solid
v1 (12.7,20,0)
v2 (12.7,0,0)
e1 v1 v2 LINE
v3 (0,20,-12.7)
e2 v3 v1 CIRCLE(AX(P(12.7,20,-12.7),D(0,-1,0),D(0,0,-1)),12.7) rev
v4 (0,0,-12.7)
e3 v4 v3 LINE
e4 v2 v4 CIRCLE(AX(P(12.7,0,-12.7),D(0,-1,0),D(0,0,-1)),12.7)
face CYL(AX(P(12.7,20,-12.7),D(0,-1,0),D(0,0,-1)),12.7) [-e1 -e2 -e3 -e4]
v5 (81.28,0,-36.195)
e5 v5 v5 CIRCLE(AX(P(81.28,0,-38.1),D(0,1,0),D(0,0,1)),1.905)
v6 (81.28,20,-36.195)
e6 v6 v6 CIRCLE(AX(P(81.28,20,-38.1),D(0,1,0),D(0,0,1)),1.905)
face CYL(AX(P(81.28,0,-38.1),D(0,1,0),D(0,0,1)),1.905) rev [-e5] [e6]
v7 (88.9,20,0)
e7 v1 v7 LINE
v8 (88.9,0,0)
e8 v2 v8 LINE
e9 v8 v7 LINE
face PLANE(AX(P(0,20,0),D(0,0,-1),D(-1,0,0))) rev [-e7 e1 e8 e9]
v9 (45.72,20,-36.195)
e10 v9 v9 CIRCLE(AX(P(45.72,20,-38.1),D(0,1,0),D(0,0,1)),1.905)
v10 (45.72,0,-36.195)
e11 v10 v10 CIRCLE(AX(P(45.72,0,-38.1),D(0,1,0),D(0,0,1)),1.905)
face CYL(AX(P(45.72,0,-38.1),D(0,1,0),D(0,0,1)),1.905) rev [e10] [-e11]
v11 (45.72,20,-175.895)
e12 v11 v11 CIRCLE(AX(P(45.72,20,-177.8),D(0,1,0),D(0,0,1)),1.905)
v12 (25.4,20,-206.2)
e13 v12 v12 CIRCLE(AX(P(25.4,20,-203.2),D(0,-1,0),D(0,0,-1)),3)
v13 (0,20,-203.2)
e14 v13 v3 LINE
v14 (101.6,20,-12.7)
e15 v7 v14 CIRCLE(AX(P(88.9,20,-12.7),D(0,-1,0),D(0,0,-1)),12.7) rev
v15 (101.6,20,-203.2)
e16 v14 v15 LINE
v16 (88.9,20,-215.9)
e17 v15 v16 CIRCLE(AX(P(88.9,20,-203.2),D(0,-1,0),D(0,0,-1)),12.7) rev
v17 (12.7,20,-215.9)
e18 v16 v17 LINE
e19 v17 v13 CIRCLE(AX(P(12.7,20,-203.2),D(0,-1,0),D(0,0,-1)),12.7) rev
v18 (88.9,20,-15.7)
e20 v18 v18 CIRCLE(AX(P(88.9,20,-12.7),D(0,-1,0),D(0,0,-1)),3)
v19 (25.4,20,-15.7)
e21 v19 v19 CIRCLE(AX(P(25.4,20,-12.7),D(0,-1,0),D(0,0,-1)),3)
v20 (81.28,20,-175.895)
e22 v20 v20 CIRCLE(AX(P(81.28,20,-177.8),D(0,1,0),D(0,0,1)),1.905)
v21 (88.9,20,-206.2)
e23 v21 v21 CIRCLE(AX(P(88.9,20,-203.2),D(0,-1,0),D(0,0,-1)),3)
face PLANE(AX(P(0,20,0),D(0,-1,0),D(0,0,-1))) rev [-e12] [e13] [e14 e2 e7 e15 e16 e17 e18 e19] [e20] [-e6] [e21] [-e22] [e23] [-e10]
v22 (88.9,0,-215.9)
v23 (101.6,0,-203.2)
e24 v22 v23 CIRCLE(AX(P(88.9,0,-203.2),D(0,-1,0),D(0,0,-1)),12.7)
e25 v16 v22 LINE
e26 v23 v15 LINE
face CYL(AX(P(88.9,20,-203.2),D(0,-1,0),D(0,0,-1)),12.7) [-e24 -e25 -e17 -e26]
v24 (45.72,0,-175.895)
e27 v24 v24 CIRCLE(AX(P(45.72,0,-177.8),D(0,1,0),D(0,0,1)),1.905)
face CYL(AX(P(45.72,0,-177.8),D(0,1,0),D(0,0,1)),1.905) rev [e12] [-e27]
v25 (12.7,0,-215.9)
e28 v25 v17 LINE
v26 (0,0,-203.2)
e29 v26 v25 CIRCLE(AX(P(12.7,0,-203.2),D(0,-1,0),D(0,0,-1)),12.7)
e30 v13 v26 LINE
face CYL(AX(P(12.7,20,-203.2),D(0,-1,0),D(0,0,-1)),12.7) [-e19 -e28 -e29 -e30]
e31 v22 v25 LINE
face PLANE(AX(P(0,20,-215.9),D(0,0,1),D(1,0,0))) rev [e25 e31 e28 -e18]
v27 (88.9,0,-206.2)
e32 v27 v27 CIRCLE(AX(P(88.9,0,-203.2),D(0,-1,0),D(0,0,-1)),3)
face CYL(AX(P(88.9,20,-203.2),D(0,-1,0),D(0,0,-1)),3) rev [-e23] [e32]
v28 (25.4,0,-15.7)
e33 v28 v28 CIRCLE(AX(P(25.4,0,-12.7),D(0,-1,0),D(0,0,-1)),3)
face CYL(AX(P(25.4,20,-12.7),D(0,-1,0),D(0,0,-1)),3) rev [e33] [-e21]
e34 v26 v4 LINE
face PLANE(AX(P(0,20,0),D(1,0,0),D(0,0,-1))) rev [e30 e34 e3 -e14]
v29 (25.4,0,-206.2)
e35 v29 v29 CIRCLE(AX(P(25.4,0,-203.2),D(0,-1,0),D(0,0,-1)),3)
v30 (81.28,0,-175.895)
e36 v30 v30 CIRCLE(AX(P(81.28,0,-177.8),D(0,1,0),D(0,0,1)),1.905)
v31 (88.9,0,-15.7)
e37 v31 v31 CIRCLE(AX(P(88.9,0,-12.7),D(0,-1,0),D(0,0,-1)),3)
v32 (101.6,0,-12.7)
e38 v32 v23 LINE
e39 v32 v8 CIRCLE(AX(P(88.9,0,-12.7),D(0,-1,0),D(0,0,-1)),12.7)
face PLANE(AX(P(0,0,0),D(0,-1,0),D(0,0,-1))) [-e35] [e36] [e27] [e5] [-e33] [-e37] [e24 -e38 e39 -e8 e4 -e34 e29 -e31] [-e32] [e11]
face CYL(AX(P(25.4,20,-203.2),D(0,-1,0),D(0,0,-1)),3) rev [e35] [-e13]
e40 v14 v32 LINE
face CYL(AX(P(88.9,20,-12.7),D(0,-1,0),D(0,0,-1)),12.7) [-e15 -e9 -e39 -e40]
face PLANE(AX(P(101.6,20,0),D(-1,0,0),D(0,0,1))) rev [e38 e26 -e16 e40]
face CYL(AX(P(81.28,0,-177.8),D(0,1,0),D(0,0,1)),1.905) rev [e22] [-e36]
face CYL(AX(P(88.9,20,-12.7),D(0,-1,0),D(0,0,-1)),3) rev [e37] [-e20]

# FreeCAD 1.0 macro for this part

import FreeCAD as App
import Part
import Sketcher
Q = App.Units.Quantity


def edges_at(feature, points):
    """Names of the edges that pass closest to the given points."""
    edges = feature.Shape.Edges
    near = lambda p: min(range(len(edges)), key=lambda i: edges[i].distToShape(Part.Vertex(*p))[0])
    return sorted({f"Edge{near(p) + 1}" for p in points})


def add_polygon(sketch, points):
    """Adds a closed chain of lines whose ends are joined by coincident constraints."""
    first, n = sketch.GeometryCount, len(points)
    for a, b in zip(points, points[1:] + points[:1]):
        sketch.addGeometry(Part.LineSegment(App.Vector(*a, 0), App.Vector(*b, 0)), False)
    for i in range(n):
        sketch.addConstraint(Sketcher.Constraint("Coincident", first + i, 2, first + (i + 1) % n, 1))

doc = App.newDocument("Part")
params = doc.addObject("Spreadsheet::Sheet", "Params")
for row, (alias, value) in enumerate([
    ("sketch1_width", "4 in"),
    ("sketch1_height", "8.5 in"),
    ("pad1_length", "20 mm"),
    ("fillet_radius", "0.5 in"),
    ("sketch3_diameter", "0.15 in"),
], start=1):
    params.set(f"A{row}", alias)
    params.set(f"B{row}", "=" + value)
    params.setAlias(f"B{row}", alias)

body = doc.addObject("PartDesign::Body", "Body")

# Sketch on XZ plane
sketch1 = body.newObject("Sketcher::SketchObject", "Sketch")
sketch1.AttachmentSupport = (doc.getObject("XZ_Plane"), [""])
sketch1.MapMode = "FlatFace"
add_polygon(sketch1, [(0, -216), (0, 0), (102, 0), (102, -216)])  # lines 0-3
sketch1.addConstraint(Sketcher.Constraint("Vertical", 0))
sketch1.addConstraint(Sketcher.Constraint("Horizontal", 1))
sketch1.addConstraint(Sketcher.Constraint("Vertical", 2))
sketch1.addConstraint(Sketcher.Constraint("Horizontal", 3))
sketch1.addConstraint(Sketcher.Constraint("Coincident", 0, 2, -1, 1))
sketch1.addConstraint(Sketcher.Constraint("DistanceX", 1, 1, 1, 2, Q("4 in")))
sketch1.addConstraint(Sketcher.Constraint("DistanceY", 0, 1, 0, 2, Q("8.5 in")))
sketch1.setExpression("Constraints[9]", "Params.sketch1_width")
sketch1.setExpression("Constraints[10]", "Params.sketch1_height")
pad1 = body.newObject("PartDesign::Pad", "Pad")
pad1.Profile = sketch1
pad1.setExpression("Length", "Params.pad1_length")
pad1.Reversed = True
doc.recompute()

fillet = body.newObject("PartDesign::Fillet", "Fillet")
fillet.Base = (pad1, edges_at(pad1, [
    (0, 10, -215.9),
    (101.6, 10, -215.9),
    (101.6, 10, 0),
    (0, 10, 0),
]))
fillet.setExpression("Radius", "Params.fillet_radius")

# Sketch on XZ plane
sketch2 = body.newObject("Sketcher::SketchObject", "Sketch001")
sketch2.AttachmentSupport = (doc.getObject("XZ_Plane"), [""])
sketch2.MapMode = "FlatFace"
sketch2.addGeometry(Part.Circle(App.Vector(88.9, -203.2, 0), App.Vector(0, 0, 1), 3), False)
sketch2.addGeometry(Part.Circle(App.Vector(25.4, -203.2, 0), App.Vector(0, 0, 1), 3), False)
sketch2.addGeometry(Part.Circle(App.Vector(88.9, -12.7, 0), App.Vector(0, 0, 1), 3), False)
sketch2.addGeometry(Part.Circle(App.Vector(25.4, -12.7, 0), App.Vector(0, 0, 1), 3), False)
sketch2.addConstraint(Sketcher.Constraint("Equal", 0, 1))
sketch2.addConstraint(Sketcher.Constraint("Equal", 1, 2))
sketch2.addConstraint(Sketcher.Constraint("Equal", 2, 3))
sketch2.addConstraint(Sketcher.Constraint("Horizontal", 0, 3, 1, 3))
sketch2.addConstraint(Sketcher.Constraint("Horizontal", 2, 3, 3, 3))
sketch2.addConstraint(Sketcher.Constraint("Vertical", 0, 3, 2, 3))
sketch2.addConstraint(Sketcher.Constraint("Vertical", 1, 3, 3, 3))
sketch2.addConstraint(Sketcher.Constraint("DistanceY", 0, 3, -1, 1, Q("8 in")))
sketch2.addConstraint(Sketcher.Constraint("DistanceX", -1, 1, 1, 3, Q("1 in")))
sketch2.addConstraint(Sketcher.Constraint("DistanceX", -1, 1, 0, 3, Q("3.5 in")))
sketch2.addConstraint(Sketcher.Constraint("DistanceY", 2, 3, -1, 1, Q("0.5 in")))
sketch2.addConstraint(Sketcher.Constraint("Diameter", 0, Q("6 mm")))
pocket1 = body.newObject("PartDesign::Pocket", "Pocket")
pocket1.Profile = sketch2
pocket1.Type = "ThroughAll"

# Sketch on XZ plane
sketch3 = body.newObject("Sketcher::SketchObject", "Sketch002")
sketch3.AttachmentSupport = (doc.getObject("XZ_Plane"), [""])
sketch3.MapMode = "FlatFace"
sketch3.AttachmentOffset = App.Placement(App.Vector(0, 0, -20), App.Rotation())
sketch3.addGeometry(Part.Circle(App.Vector(81.3, -177.8, 0), App.Vector(0, 0, 1), 1.9), False)
sketch3.addGeometry(Part.Circle(App.Vector(45.7, -177.8, 0), App.Vector(0, 0, 1), 1.9), False)
sketch3.addGeometry(Part.Circle(App.Vector(45.7, -38.1, 0), App.Vector(0, 0, 1), 1.9), False)
sketch3.addGeometry(Part.Circle(App.Vector(81.3, -38.1, 0), App.Vector(0, 0, 1), 1.9), False)
sketch3.addConstraint(Sketcher.Constraint("Equal", 0, 1))
sketch3.addConstraint(Sketcher.Constraint("Equal", 1, 2))
sketch3.addConstraint(Sketcher.Constraint("Equal", 2, 3))
sketch3.addConstraint(Sketcher.Constraint("Horizontal", 0, 3, 1, 3))
sketch3.addConstraint(Sketcher.Constraint("Horizontal", 2, 3, 3, 3))
sketch3.addConstraint(Sketcher.Constraint("Vertical", 1, 3, 2, 3))
sketch3.addConstraint(Sketcher.Constraint("Vertical", 0, 3, 3, 3))
sketch3.addConstraint(Sketcher.Constraint("Diameter", 0, Q("0.15 in")))
sketch3.addConstraint(Sketcher.Constraint("DistanceY", 0, 3, -1, 1, Q("7 in")))
sketch3.addConstraint(Sketcher.Constraint("DistanceX", -1, 1, 0, 3, Q("3.2 in")))
sketch3.addConstraint(Sketcher.Constraint("DistanceX", -1, 1, 1, 3, Q("1.8 in")))
sketch3.addConstraint(Sketcher.Constraint("DistanceY", 2, 3, -1, 1, Q("1.5 in")))
sketch3.setExpression("Constraints[7]", "Params.sketch3_diameter")
pocket2 = body.newObject("PartDesign::Pocket", "Pocket001")
pocket2.Profile = sketch3
pocket2.Type = "ThroughAll"
pocket2.Reversed = True

doc.recompute()
